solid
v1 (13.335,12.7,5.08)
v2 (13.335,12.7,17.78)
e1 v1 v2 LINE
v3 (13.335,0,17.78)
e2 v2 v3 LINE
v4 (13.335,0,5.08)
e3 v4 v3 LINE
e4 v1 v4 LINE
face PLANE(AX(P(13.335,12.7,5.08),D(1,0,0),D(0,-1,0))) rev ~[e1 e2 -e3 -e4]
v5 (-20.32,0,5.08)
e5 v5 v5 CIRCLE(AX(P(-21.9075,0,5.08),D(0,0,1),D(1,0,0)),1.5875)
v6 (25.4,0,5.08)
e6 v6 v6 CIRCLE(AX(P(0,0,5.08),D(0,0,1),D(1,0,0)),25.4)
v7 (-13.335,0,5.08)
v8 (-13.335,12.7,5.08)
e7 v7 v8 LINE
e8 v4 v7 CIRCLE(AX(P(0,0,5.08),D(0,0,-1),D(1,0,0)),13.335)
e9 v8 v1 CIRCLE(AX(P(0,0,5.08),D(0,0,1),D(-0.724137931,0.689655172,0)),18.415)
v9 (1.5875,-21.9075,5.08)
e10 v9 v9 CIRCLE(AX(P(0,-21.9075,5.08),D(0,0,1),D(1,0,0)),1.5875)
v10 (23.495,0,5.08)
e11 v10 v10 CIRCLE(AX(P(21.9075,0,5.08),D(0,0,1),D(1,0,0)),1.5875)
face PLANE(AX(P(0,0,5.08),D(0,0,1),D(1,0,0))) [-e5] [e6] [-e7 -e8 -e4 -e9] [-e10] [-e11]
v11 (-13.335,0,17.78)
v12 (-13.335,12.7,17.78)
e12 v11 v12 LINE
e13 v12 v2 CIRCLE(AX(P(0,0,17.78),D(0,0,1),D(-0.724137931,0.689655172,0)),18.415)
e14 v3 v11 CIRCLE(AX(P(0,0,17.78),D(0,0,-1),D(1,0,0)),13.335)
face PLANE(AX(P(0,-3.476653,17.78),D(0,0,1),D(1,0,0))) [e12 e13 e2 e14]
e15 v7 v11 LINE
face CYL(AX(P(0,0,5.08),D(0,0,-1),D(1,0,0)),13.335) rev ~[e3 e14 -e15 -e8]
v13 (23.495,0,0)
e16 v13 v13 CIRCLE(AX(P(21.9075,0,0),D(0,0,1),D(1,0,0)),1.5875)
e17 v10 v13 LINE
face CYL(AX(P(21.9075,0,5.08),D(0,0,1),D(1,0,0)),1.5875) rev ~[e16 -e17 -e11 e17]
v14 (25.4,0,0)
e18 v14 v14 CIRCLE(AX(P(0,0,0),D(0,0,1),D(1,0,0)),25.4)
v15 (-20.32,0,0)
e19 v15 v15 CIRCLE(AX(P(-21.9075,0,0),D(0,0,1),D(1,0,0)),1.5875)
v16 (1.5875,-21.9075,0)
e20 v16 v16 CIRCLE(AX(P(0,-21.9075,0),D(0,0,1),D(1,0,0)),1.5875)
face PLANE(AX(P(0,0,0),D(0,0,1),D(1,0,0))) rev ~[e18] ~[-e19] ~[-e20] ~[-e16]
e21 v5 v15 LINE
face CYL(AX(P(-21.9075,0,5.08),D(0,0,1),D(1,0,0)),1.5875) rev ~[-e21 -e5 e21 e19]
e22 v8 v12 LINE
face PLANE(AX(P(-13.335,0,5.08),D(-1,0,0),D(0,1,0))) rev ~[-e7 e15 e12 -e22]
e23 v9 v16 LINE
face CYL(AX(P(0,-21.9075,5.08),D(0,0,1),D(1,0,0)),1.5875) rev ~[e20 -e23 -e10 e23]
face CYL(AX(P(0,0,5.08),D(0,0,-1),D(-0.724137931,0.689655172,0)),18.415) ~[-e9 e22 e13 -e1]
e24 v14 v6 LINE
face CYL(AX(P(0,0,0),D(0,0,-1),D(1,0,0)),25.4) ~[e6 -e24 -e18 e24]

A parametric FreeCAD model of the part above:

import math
import FreeCAD as App
import Part
import Sketcher

V = App.Vector
Q = App.Units.Quantity

doc = App.newDocument("Part")
params = doc.addObject("Spreadsheet::Sheet", "Params")
for row, (alias, value) in enumerate([
    ("sketch1_diameter", "2 in"),
    ("pad1_length", "0.2 in"),
    ("sketch2_height", "0.5 in"),
    ("sketch2_radius", "0.525 in"),
    ("pad2_length", "0.5 in"),
    ("sketch3_diameter", "0.125 in"),
    ("pocket1_length", "1 in"),
], start=1):
    params.set(f"A{row}", alias)
    params.set(f"B{row}", "=" + value)
    params.setAlias(f"B{row}", alias)

body = doc.addObject("PartDesign::Body", "Body")

# Sketch on XY plane
sketch1 = doc.addObject("Sketcher::SketchObject", "Sketch")
body.addObject(sketch1)
sketch1.AttachmentSupport = (doc.XY_Plane, [""])
sketch1.MapMode = "FlatFace"
sketch1.addGeometry(Part.Circle(V(0, 0, 0), V(0, 0, 1), 25.4), False)
sketch1.addConstraint([
    Sketcher.Constraint("Coincident", 0, 3, -1, 1),
    Sketcher.Constraint("Diameter", 0, Q("2 in")),
])
sketch1.setExpression("Constraints[1]", "Params.sketch1_diameter")
pad1 = doc.addObject("PartDesign::Pad", "Pad")
body.addObject(pad1)
pad1.Profile = sketch1
pad1.setExpression("Length", "Params.pad1_length")

# Sketch on XY plane
sketch2 = doc.addObject("Sketcher::SketchObject", "Sketch001")
body.addObject(sketch2)
sketch2.AttachmentSupport = (doc.XY_Plane, [""])
sketch2.MapMode = "FlatFace"
sketch2.AttachmentOffset = App.Placement(V(0, 0, 0.2 * 25.4), App.Rotation())
sketch2.addGeometry([
    Part.ArcOfCircle(Part.Circle(V(0, 0, 0), V(0, 0, 1), 13.335), math.radians(180), math.radians(360)),
    Part.LineSegment(V(-13.335, 0, 0), V(-13.335, 12.7, 0)),
    Part.ArcOfCircle(Part.Circle(V(0, 0, 0), V(0, 0, 1), 18.415), math.radians(136.397181), math.radians(403.602819)),
    Part.LineSegment(V(13.335, 12.7, 0), V(13.335, 0, 0)),
], False)
sketch2.addConstraint([
    Sketcher.Constraint("Tangent", 0, 1, 1, 1),
    Sketcher.Constraint("Coincident", 1, 2, 2, 1),
    Sketcher.Constraint("Coincident", 2, 2, 3, 1),
    Sketcher.Constraint("Tangent", 3, 2, 0, 2),
    Sketcher.Constraint("Vertical", 1),
    Sketcher.Constraint("Vertical", 3),
    Sketcher.Constraint("Coincident", 0, 3, -1, 1),
    Sketcher.Constraint("Coincident", 2, 3, -1, 1),
    Sketcher.Constraint("DistanceY", 1, 1, 1, 2, Q("0.5 in")),
    Sketcher.Constraint("Radius", 0, Q("0.525 in")),
])
sketch2.setExpression("Constraints[8]", "Params.sketch2_height")
sketch2.setExpression("Constraints[9]", "Params.sketch2_radius")
pad2 = doc.addObject("PartDesign::Pad", "Pad001")
body.addObject(pad2)
pad2.Profile = sketch2
pad2.setExpression("Length", "Params.pad2_length")

# Sketch on XY plane
sketch3 = doc.addObject("Sketcher::SketchObject", "Sketch002")
body.addObject(sketch3)
sketch3.AttachmentSupport = (doc.XY_Plane, [""])
sketch3.MapMode = "FlatFace"
sketch3.AttachmentOffset = App.Placement(V(0, 0, 0.2 * 25.4), App.Rotation())
sketch3.addGeometry([
    Part.Circle(V(-21.9075, 0, 0), V(0, 0, 1), 1.5875),
    Part.Circle(V(21.9075, 0, 0), V(0, 0, 1), 1.5875),
    Part.Circle(V(0, -21.9075, 0), V(0, 0, 1), 1.5875),
], False)
sketch3.addConstraint([
    Sketcher.Constraint("Equal", 0, 1),
    Sketcher.Constraint("Equal", 1, 2),
    Sketcher.Constraint("Symmetric", 0, 3, 1, 3, -1, 1),
    Sketcher.Constraint("PointOnObject", 0, 3, -1),
    Sketcher.Constraint("PointOnObject", 2, 3, -2),
    Sketcher.Constraint("Diameter", 0, Q("0.125 in")),
    Sketcher.Constraint("DistanceX", 0, 3, 1, 3, Q("1.725 in")),
    Sketcher.Constraint("DistanceY", 2, 3, -1, 1, Q("0.8625 in")),
])
sketch3.setExpression("Constraints[5]", "Params.sketch3_diameter")
pocket1 = doc.addObject("PartDesign::Pocket", "Pocket")
body.addObject(pocket1)
pocket1.Profile = sketch3
pocket1.setExpression("Length", "Params.pocket1_length")

doc.recompute()
